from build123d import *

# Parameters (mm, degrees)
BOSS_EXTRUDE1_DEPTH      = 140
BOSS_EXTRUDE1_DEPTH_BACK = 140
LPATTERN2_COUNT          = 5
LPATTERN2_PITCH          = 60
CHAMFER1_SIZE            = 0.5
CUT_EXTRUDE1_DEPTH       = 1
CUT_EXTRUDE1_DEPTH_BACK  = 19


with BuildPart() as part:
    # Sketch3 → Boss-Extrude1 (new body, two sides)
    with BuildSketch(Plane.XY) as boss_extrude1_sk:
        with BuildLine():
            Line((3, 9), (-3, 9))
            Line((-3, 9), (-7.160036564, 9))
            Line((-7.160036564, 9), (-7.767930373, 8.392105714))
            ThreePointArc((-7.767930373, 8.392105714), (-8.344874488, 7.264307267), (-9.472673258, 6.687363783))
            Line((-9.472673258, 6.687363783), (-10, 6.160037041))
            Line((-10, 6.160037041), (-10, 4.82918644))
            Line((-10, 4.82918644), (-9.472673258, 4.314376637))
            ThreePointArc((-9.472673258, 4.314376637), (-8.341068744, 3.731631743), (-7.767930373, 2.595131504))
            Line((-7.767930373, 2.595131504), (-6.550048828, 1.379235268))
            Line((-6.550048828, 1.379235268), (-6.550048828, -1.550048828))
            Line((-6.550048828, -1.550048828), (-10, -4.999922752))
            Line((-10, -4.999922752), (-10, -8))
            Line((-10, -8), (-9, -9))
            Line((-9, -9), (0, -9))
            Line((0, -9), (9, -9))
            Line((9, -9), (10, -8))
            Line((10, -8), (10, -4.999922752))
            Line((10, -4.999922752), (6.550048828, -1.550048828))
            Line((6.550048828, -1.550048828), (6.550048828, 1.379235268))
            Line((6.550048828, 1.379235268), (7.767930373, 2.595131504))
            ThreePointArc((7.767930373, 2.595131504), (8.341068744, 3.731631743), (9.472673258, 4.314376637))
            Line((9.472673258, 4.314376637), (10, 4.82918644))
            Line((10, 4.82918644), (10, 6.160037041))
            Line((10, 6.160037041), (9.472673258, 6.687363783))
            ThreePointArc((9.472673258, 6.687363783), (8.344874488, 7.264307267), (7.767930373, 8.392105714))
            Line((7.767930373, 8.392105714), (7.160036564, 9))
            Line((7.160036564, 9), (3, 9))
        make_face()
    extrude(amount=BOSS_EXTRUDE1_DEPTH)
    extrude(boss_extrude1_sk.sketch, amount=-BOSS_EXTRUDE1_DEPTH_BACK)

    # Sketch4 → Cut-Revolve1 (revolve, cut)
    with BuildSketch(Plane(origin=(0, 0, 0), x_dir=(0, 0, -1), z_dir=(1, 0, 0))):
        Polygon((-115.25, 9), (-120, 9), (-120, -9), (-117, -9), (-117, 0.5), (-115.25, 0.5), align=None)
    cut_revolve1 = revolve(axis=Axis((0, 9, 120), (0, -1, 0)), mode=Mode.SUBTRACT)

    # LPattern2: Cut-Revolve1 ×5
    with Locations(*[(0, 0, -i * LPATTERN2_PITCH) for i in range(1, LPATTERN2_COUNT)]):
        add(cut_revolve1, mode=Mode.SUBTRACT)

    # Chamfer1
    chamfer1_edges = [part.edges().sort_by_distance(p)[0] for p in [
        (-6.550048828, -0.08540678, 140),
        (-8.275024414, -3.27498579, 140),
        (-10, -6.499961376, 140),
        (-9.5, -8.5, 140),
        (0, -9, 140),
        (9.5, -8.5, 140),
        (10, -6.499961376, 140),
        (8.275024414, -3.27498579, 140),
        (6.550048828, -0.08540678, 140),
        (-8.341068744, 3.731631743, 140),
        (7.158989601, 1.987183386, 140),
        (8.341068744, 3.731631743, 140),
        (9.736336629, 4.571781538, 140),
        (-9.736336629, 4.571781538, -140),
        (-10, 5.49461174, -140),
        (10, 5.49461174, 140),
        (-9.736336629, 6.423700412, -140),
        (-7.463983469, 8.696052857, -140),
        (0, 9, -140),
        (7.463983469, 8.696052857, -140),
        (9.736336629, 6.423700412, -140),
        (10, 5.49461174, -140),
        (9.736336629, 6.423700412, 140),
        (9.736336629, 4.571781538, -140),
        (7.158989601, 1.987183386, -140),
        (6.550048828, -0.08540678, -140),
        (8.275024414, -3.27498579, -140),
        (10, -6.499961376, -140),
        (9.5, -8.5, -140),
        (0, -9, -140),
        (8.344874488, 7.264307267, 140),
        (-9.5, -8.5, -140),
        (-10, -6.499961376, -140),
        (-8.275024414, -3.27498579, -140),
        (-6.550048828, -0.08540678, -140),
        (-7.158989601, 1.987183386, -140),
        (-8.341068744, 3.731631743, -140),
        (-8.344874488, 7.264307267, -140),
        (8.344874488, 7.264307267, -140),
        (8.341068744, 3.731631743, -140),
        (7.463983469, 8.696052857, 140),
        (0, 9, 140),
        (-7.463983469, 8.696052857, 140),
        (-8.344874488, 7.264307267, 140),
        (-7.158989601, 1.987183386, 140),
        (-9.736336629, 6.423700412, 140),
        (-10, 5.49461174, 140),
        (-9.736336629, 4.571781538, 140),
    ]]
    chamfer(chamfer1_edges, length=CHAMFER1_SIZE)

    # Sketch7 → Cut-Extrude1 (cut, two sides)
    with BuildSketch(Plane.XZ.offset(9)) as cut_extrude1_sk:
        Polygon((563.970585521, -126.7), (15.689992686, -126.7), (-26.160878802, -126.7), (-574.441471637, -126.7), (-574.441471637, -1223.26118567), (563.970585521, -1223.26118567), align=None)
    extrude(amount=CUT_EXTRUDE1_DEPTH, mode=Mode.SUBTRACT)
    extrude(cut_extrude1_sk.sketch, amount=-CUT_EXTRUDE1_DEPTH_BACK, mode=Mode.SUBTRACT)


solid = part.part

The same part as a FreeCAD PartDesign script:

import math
import FreeCAD as App
import Part
import Sketcher


def edges_at(feature, points):
    """Names of the edges that pass closest to the given points."""
    edges = feature.Shape.Edges
    near = lambda p: min(range(len(edges)), key=lambda i: edges[i].distToShape(Part.Vertex(*p))[0])
    return sorted({f"Edge{near(p) + 1}" for p in points})


def add_polygon(sketch, points):
    """Adds a closed chain of lines whose ends are joined by coincident constraints."""
    first, n = sketch.GeometryCount, len(points)
    for a, b in zip(points, points[1:] + points[:1]):
        sketch.addGeometry(Part.LineSegment(App.Vector(*a, 0), App.Vector(*b, 0)), False)
    for i in range(n):
        sketch.addConstraint(Sketcher.Constraint("Coincident", first + i, 2, first + (i + 1) % n, 1))

doc = App.newDocument("Part")
params = doc.addObject("Spreadsheet::Sheet", "Params")
for row, (alias, value) in enumerate([
    ("sketch1_width", "18 mm"),
    ("sketch1_radius", "2.059999 mm"),
    ("pad1_length", "140 mm"),
    ("pad1_length2", "140 mm"),
    ("sketch2_width", "18 mm"),
    ("sketch2_height", "3 mm"),
    ("sketch2_width2", "9.5 mm"),
    ("sketch2_height2", "4.75 mm"),
    ("groove_angle", "360 deg"),
    ("linearpattern_pitch", "60 mm"),
    ("chamfer_size", "0.5 mm"),
], start=1):
    params.set(f"A{row}", alias)
    params.set(f"B{row}", "=" + value)
    params.setAlias(f"B{row}", alias)

body = doc.addObject("PartDesign::Body", "Body")

sketch1 = body.newObject("Sketcher::SketchObject", "Sketch")
sketch1.AttachmentSupport = (doc.getObject("XY_Plane"), [""])
sketch1.MapMode = "FlatFace"
sketch1.addGeometry(Part.LineSegment(App.Vector(-7.160037, 9, 0), App.Vector(-7.76793, 8.392106, 0)), False)
sketch1.addGeometry(Part.ArcOfCircle(Part.Circle(App.Vector(-9.801514, 8.720947, 0), App.Vector(0, 0, 1), 2.059999), math.radians(-80.814503), math.radians(-9.185529)), False)
sketch1.addGeometry(Part.LineSegment(App.Vector(-9.472673, 6.687364, 0), App.Vector(-10, 6.160037, 0)), False)
sketch1.addGeometry(Part.LineSegment(App.Vector(-10, 6.160037, 0), App.Vector(-10, 4.829186, 0)), False)
sketch1.addGeometry(Part.LineSegment(App.Vector(-10, 4.829186, 0), App.Vector(-9.472673, 4.314377, 0)), False)
sketch1.addGeometry(Part.ArcOfCircle(Part.Circle(App.Vector(-9.803865, 2.281175, 0), App.Vector(0, 0, 1), 2.059999), math.radians(8.766397), math.radians(80.748255)), False)
sketch1.addGeometry(Part.LineSegment(App.Vector(-7.76793, 2.595132, 0), App.Vector(-6.550049, 1.379235, 0)), False)
sketch1.addGeometry(Part.LineSegment(App.Vector(-6.550049, 1.379235, 0), App.Vector(-6.550049, -1.550049, 0)), False)
sketch1.addGeometry(Part.LineSegment(App.Vector(-6.550049, -1.550049, 0), App.Vector(-10, -4.999923, 0)), False)
sketch1.addGeometry(Part.LineSegment(App.Vector(-10, -4.999923, 0), App.Vector(-10, -8, 0)), False)
sketch1.addGeometry(Part.LineSegment(App.Vector(-10, -8, 0), App.Vector(-9, -9, 0)), False)
sketch1.addGeometry(Part.LineSegment(App.Vector(-9, -9, 0), App.Vector(9, -9, 0)), False)
sketch1.addGeometry(Part.LineSegment(App.Vector(9, -9, 0), App.Vector(10, -8, 0)), False)
sketch1.addGeometry(Part.LineSegment(App.Vector(10, -8, 0), App.Vector(10, -4.999923, 0)), False)
sketch1.addGeometry(Part.LineSegment(App.Vector(10, -4.999923, 0), App.Vector(6.550049, -1.550049, 0)), False)
sketch1.addGeometry(Part.LineSegment(App.Vector(6.550049, -1.550049, 0), App.Vector(6.550049, 1.379235, 0)), False)
sketch1.addGeometry(Part.LineSegment(App.Vector(6.550049, 1.379235, 0), App.Vector(7.76793, 2.595132, 0)), False)
sketch1.addGeometry(Part.ArcOfCircle(Part.Circle(App.Vector(9.803865, 2.281175, 0), App.Vector(0, 0, 1), 2.059999), math.radians(99.251745), math.radians(171.233603)), False)
sketch1.addGeometry(Part.LineSegment(App.Vector(9.472673, 4.314377, 0), App.Vector(10, 4.829186, 0)), False)
sketch1.addGeometry(Part.LineSegment(App.Vector(10, 4.829186, 0), App.Vector(10, 6.160037, 0)), False)
sketch1.addGeometry(Part.LineSegment(App.Vector(10, 6.160037, 0), App.Vector(9.472673, 6.687364, 0)), False)
sketch1.addGeometry(Part.ArcOfCircle(Part.Circle(App.Vector(9.801514, 8.720947, 0), App.Vector(0, 0, 1), 2.059999), math.radians(-170.814471), math.radians(-99.185497)), False)
sketch1.addGeometry(Part.LineSegment(App.Vector(7.76793, 8.392106, 0), App.Vector(7.160037, 9, 0)), False)
sketch1.addGeometry(Part.LineSegment(App.Vector(7.160037, 9, 0), App.Vector(-7.160037, 9, 0)), False)
sketch1.addConstraint(Sketcher.Constraint("Coincident", 0, 2, 1, 2))
sketch1.addConstraint(Sketcher.Constraint("Coincident", 1, 1, 2, 1))
sketch1.addConstraint(Sketcher.Constraint("Coincident", 2, 2, 3, 1))
sketch1.addConstraint(Sketcher.Constraint("Coincident", 3, 2, 4, 1))
sketch1.addConstraint(Sketcher.Constraint("Coincident", 4, 2, 5, 2))
sketch1.addConstraint(Sketcher.Constraint("Coincident", 5, 1, 6, 1))
sketch1.addConstraint(Sketcher.Constraint("Coincident", 6, 2, 7, 1))
sketch1.addConstraint(Sketcher.Constraint("Coincident", 7, 2, 8, 1))
sketch1.addConstraint(Sketcher.Constraint("Coincident", 8, 2, 9, 1))
sketch1.addConstraint(Sketcher.Constraint("Coincident", 9, 2, 10, 1))
sketch1.addConstraint(Sketcher.Constraint("Coincident", 10, 2, 11, 1))
sketch1.addConstraint(Sketcher.Constraint("Coincident", 11, 2, 12, 1))
sketch1.addConstraint(Sketcher.Constraint("Coincident", 12, 2, 13, 1))
sketch1.addConstraint(Sketcher.Constraint("Coincident", 13, 2, 14, 1))
sketch1.addConstraint(Sketcher.Constraint("Coincident", 14, 2, 15, 1))
sketch1.addConstraint(Sketcher.Constraint("Coincident", 15, 2, 16, 1))
sketch1.addConstraint(Sketcher.Constraint("Coincident", 16, 2, 17, 2))
sketch1.addConstraint(Sketcher.Constraint("Coincident", 17, 1, 18, 1))
sketch1.addConstraint(Sketcher.Constraint("Coincident", 18, 2, 19, 1))
sketch1.addConstraint(Sketcher.Constraint("Coincident", 19, 2, 20, 1))
sketch1.addConstraint(Sketcher.Constraint("Coincident", 20, 2, 21, 2))
sketch1.addConstraint(Sketcher.Constraint("Coincident", 21, 1, 22, 1))
sketch1.addConstraint(Sketcher.Constraint("Coincident", 22, 2, 23, 1))
sketch1.addConstraint(Sketcher.Constraint("Coincident", 23, 2, 0, 1))
sketch1.addConstraint(Sketcher.Constraint("Vertical", 3))
sketch1.addConstraint(Sketcher.Constraint("Vertical", 7))
sketch1.addConstraint(Sketcher.Constraint("Vertical", 9))
sketch1.addConstraint(Sketcher.Constraint("Horizontal", 11))
sketch1.addConstraint(Sketcher.Constraint("Vertical", 13))
sketch1.addConstraint(Sketcher.Constraint("Vertical", 15))
sketch1.addConstraint(Sketcher.Constraint("Vertical", 19))
sketch1.addConstraint(Sketcher.Constraint("Horizontal", 23))
sketch1.addConstraint(Sketcher.Constraint("Equal", 1, 5))
sketch1.addConstraint(Sketcher.Constraint("Equal", 5, 17))
sketch1.addConstraint(Sketcher.Constraint("Equal", 17, 21))
sketch1.addConstraint(Sketcher.Constraint("Symmetric", 5, 3, 17, 3, -2))
sketch1.addConstraint(Sketcher.Constraint("Symmetric", 1, 3, 21, 3, -2))
sketch1.addConstraint(Sketcher.Constraint("Symmetric", 9, 2, 12, 2, -2))
sketch1.addConstraint(Sketcher.Constraint("Symmetric", 7, 2, 14, 2, -2))
sketch1.addConstraint(Sketcher.Constraint("Symmetric", 3, 2, 18, 2, -2))
sketch1.addConstraint(Sketcher.Constraint("Parallel", 0, 2))
sketch1.addConstraint(Sketcher.Constraint("Perpendicular", 2, 10))
sketch1.addConstraint(Sketcher.Constraint("Perpendicular", 10, 12))
sketch1.addConstraint(Sketcher.Constraint("Perpendicular", 12, 20))
sketch1.addConstraint(Sketcher.Constraint("Parallel", 20, 22))
sketch1.addConstraint(Sketcher.Constraint("Horizontal", 8, 2, 13, 2))
sketch1.addConstraint(Sketcher.Constraint("Horizontal", 6, 2, 15, 2))
sketch1.addConstraint(Sketcher.Constraint("Horizontal", 5, 1, 16, 2))
sketch1.addConstraint(Sketcher.Constraint("Horizontal", 4, 2, 17, 1))
sketch1.addConstraint(Sketcher.Constraint("Horizontal", 2, 2, 19, 2))
sketch1.addConstraint(Sketcher.Constraint("Horizontal", 1, 1, 20, 2))
sketch1.addConstraint(Sketcher.Constraint("Horizontal", 0, 2, 21, 1))
sketch1.addConstraint(Sketcher.Constraint("Vertical", 1, 1, 4, 2))
sketch1.addConstraint(Sketcher.Constraint("Vertical", 0, 2, 5, 1))
sketch1.addConstraint(Sketcher.Constraint("Vertical", 3, 2, 8, 2))
sketch1.addConstraint(Sketcher.Constraint("DistanceX", 11, 1, 11, 2, 18.0))
sketch1.addConstraint(Sketcher.Constraint("Radius", 1, 2.059999))
sketch1.addConstraint(Sketcher.Constraint("DistanceX", 2, 2, -1, 1, 10.0))
sketch1.addConstraint(Sketcher.Constraint("DistanceY", 9, 2, -1, 1, 8.0))
sketch1.addConstraint(Sketcher.Constraint("DistanceY", -1, 1, 22, 2, 9.0))
sketch1.addConstraint(Sketcher.Constraint("DistanceY", 3, 2, 3, 1, 1.330851))
sketch1.addConstraint(Sketcher.Constraint("DistanceY", 5, 3, 4, 2, 2.033202))
sketch1.addConstraint(Sketcher.Constraint("DistanceY", 6, 2, 2, 2, 4.780802))
sketch1.addConstraint(Sketcher.Constraint("DistanceY", 8, 2, 4, 2, 9.314299))
sketch1.addConstraint(Sketcher.Constraint("Distance", 6, 1.720941))
sketch1.addConstraint(Sketcher.Constraint("DistanceX", 23, 2, 23, 1, 14.320073))
sketch1.addConstraint(Sketcher.Constraint("DistanceY", 7, 2, 7, 1, 2.929284))
sketch1.addConstraint(Sketcher.Constraint("DistanceY", 9, 2, 9, 1, 3.000077))
sketch1.addConstraint(Sketcher.Constraint("DistanceX", 0, 2, -1, 1, 7.76793))
sketch1.addConstraint(Sketcher.Constraint("DistanceY", -1, 1, 5, 1, 2.595132))
sketch1.addConstraint(Sketcher.Constraint("DistanceX", 6, 2, -1, 1, 6.550049))
sketch1.setExpression("Constraints[55]", "Params.sketch1_width")
sketch1.setExpression("Constraints[56]", "Params.sketch1_radius")
pad1 = body.newObject("PartDesign::Pad", "Pad")
pad1.Profile = sketch1
pad1.Type = "TwoLengths"
pad1.setExpression("Length", "Params.pad1_length")
pad1.setExpression("Length2", "Params.pad1_length2")

sketch2 = body.newObject("Sketcher::SketchObject", "Sketch001")
sketch2.AttachmentSupport = (doc.getObject("YZ_Plane"), [""])
sketch2.MapMode = "FlatFace"
add_polygon(sketch2, [(9, 115.25), (9, 120), (-9, 120), (-9, 117), (0.5, 117), (0.5, 115.25)])
sketch2.addGeometry(Part.LineSegment(App.Vector(9, 120, 0), App.Vector(-9, 120, 0)), True)
sketch2.addConstraint(Sketcher.Constraint("Vertical", 0))
sketch2.addConstraint(Sketcher.Constraint("Horizontal", 1))
sketch2.addConstraint(Sketcher.Constraint("Vertical", 2))
sketch2.addConstraint(Sketcher.Constraint("Horizontal", 3))
sketch2.addConstraint(Sketcher.Constraint("Vertical", 4))
sketch2.addConstraint(Sketcher.Constraint("Horizontal", 5))
sketch2.addConstraint(Sketcher.Constraint("Horizontal", 6))
sketch2.addConstraint(Sketcher.Constraint("Coincident", 6, 1, 0, 2))
sketch2.addConstraint(Sketcher.Constraint("Vertical", 2, 2, 6, 2))
sketch2.addConstraint(Sketcher.Constraint("DistanceX", 1, 2, 1, 1, 18.0))
sketch2.addConstraint(Sketcher.Constraint("DistanceY", 2, 2, 2, 1, 3.0))
sketch2.addConstraint(Sketcher.Constraint("DistanceX", 3, 1, 3, 2, 9.5))
sketch2.addConstraint(Sketcher.Constraint("DistanceX", -1, 1, 0, 2, 9.0))
sketch2.addConstraint(Sketcher.Constraint("DistanceY", -1, 1, 0, 2, 120.0))
sketch2.addConstraint(Sketcher.Constraint("DistanceY", 0, 1, 0, 2, 4.75))
sketch2.setExpression("Constraints[15]", "Params.sketch2_width")
sketch2.setExpression("Constraints[16]", "Params.sketch2_height")
sketch2.setExpression("Constraints[17]", "Params.sketch2_width2")
sketch2.setExpression("Constraints[20]", "Params.sketch2_height2")
groove = body.newObject("PartDesign::Groove", "Groove")
groove.Profile = sketch2
groove.ReferenceAxis = (sketch2, ["Axis0"])
groove.setExpression("Angle", "Params.groove_angle")
doc.recompute()

linearpattern = body.newObject("PartDesign::LinearPattern", "LinearPattern")
linearpattern.Originals = [groove]
linearpattern.Direction = (doc.getObject("Z_Axis"), [""])
linearpattern.Mode = "offset"
linearpattern.setExpression("Offset", "Params.linearpattern_pitch")
linearpattern.Occurrences = 5
linearpattern.Reversed = True
body.Tip = linearpattern
doc.recompute()

chamfer = body.newObject("PartDesign::Chamfer", "Chamfer")
chamfer.Base = (linearpattern, edges_at(linearpattern, [
    (-6.55, -0.085, 140),
    (-8.275, -3.275, 140),
    (-10, -6.5, 140),
    (-9.5, -8.5, 140),
    (0, -9, 140),
    (9.5, -8.5, 140),
    (10, -6.5, 140),
    (8.275, -3.275, 140),
    (6.55, -0.085, 140),
    (-8.341, 3.732, 140),
    (7.159, 1.987, 140),
    (8.341, 3.732, 140),
    (9.736, 4.572, 140),
    (-9.736, 4.572, -140),
    (-10, 5.495, -140),
    (10, 5.495, 140),
    (-9.736, 6.424, -140),
    (-7.464, 8.696, -140),
    (0, 9, -140),
    (7.464, 8.696, -140),
    (9.736, 6.424, -140),
    (10, 5.495, -140),
    (9.736, 6.424, 140),
    (9.736, 4.572, -140),
    (7.159, 1.987, -140),
    (6.55, -0.085, -140),
    (8.275, -3.275, -140),
    (10, -6.5, -140),
    (9.5, -8.5, -140),
    (0, -9, -140),
    (8.345, 7.264, 140),
    (-9.5, -8.5, -140),
    (-10, -6.5, -140),
    (-8.275, -3.275, -140),
    (-6.55, -0.085, -140),
    (-7.159, 1.987, -140),
    (-8.341, 3.732, -140),
    (-8.345, 7.264, -140),
    (8.345, 7.264, -140),
    (8.341, 3.732, -140),
    (7.464, 8.696, 140),
    (0, 9, 140),
    (-7.464, 8.696, 140),
    (-8.345, 7.264, 140),
    (-7.159, 1.987, 140),
    (-9.736, 6.424, 140),
    (-10, 5.495, 140),
    (-9.736, 4.572, 140),
]))
chamfer.setExpression("Size", "Params.chamfer_size")

sketch3 = body.newObject("Sketcher::SketchObject", "Sketch002")
sketch3.AttachmentSupport = (doc.getObject("XZ_Plane"), [""])
sketch3.MapMode = "FlatFace"
sketch3.AttachmentOffset = App.Placement(App.Vector(0, 0, 9), App.Rotation())
add_polygon(sketch3, [(563.970586, -126.7), (-574.441472, -126.7), (-574.441472, -1223.261186), (563.970586, -1223.261186)])
sketch3.addConstraint(Sketcher.Constraint("Horizontal", 0))
sketch3.addConstraint(Sketcher.Constraint("Vertical", 1))
sketch3.addConstraint(Sketcher.Constraint("Horizontal", 2))
sketch3.addConstraint(Sketcher.Constraint("Vertical", 3))
sketch3.addConstraint(Sketcher.Constraint("DistanceY", 0, 2, -1, 1, 126.7))
sketch3.addConstraint(Sketcher.Constraint("DistanceX", 0, 2, 0, 1, 1138.412057))
sketch3.addConstraint(Sketcher.Constraint("DistanceY", 1, 2, 1, 1, 1096.561186))
sketch3.addConstraint(Sketcher.Constraint("DistanceX", 0, 2, -1, 1, 574.441472))
pocket1 = body.newObject("PartDesign::Pocket", "Pocket")
pocket1.Profile = sketch3
pocket1.Type = "ThroughAll"
pocket1.Midplane = True

doc.recompute()
